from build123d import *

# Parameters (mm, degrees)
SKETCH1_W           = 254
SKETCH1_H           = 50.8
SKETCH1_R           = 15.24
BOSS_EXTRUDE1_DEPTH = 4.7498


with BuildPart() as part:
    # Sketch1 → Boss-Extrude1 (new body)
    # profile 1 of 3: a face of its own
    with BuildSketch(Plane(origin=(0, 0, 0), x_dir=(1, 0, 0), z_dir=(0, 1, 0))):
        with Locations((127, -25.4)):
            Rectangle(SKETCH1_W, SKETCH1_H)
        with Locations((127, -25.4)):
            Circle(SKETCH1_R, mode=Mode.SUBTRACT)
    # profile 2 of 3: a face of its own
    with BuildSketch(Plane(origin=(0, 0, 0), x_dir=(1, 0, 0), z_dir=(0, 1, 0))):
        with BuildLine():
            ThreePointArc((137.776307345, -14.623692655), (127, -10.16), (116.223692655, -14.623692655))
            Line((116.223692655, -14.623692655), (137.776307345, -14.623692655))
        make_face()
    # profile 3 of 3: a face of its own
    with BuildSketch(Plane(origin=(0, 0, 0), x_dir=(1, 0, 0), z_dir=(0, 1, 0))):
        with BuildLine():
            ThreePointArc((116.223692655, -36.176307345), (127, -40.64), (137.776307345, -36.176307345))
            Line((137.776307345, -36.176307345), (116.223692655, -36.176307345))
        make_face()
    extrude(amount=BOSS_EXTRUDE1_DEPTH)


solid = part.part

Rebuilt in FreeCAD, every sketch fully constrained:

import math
import FreeCAD as App
import Part
import Sketcher
from FreeCAD import Vector
Q = App.Units.Quantity


def add_polygon(sketch, points):
    """Adds a closed chain of lines whose ends are joined by coincident constraints."""
    first, n = sketch.GeometryCount, len(points)
    for a, b in zip(points, points[1:] + points[:1]):
        sketch.addGeometry(Part.LineSegment(App.Vector(*a, 0), App.Vector(*b, 0)), False)
    for i in range(n):
        sketch.addConstraint(Sketcher.Constraint("Coincident", first + i, 2, first + (i + 1) % n, 1))

doc = App.newDocument("Part")
body = doc.addObject("PartDesign::Body", "Body")

# Sketch on XZ plane
sketch1 = doc.addObject("Sketcher::SketchObject", "Sketch")
body.addObject(sketch1)
sketch1.AttachmentSupport = (doc.XZ_Plane, [""])
sketch1.MapMode = "FlatFace"
add_polygon(sketch1, [(0, 0), (0, 51), (254, 51), (254, 0)])  # lines 0-3
sketch1.addGeometry(Part.ArcOfCircle(Part.Circle(Vector(127, 25, 0), Vector(0, 0, 1), 15), math.radians(-45), math.radians(45)), False)  # 4
sketch1.addGeometry(Part.LineSegment(Vector(138, 36, 0), Vector(116, 36, 0)), False)  # 5
sketch1.addGeometry(Part.ArcOfCircle(Part.Circle(Vector(127, 25, 0), Vector(0, 0, 1), 15), math.radians(135), math.radians(225)), False)  # 6
sketch1.addGeometry(Part.LineSegment(Vector(116, 15, 0), Vector(138, 15, 0)), False)  # 7
sketch1.addConstraint(Sketcher.Constraint("Coincident", 4, 2, 5, 1))
sketch1.addConstraint(Sketcher.Constraint("Coincident", 5, 2, 6, 1))
sketch1.addConstraint(Sketcher.Constraint("Coincident", 6, 2, 7, 1))
sketch1.addConstraint(Sketcher.Constraint("Coincident", 7, 2, 4, 1))
sketch1.addConstraint(Sketcher.Constraint("Vertical", 0))
sketch1.addConstraint(Sketcher.Constraint("Horizontal", 1))
sketch1.addConstraint(Sketcher.Constraint("Vertical", 2))
sketch1.addConstraint(Sketcher.Constraint("Horizontal", 3))
sketch1.addConstraint(Sketcher.Constraint("Horizontal", 5))
sketch1.addConstraint(Sketcher.Constraint("Horizontal", 7))
sketch1.addConstraint(Sketcher.Constraint("Coincident", 3, 2, -1, 1))
sketch1.addConstraint(Sketcher.Constraint("Coincident", 6, 3, 4, 3))
sketch1.addConstraint(Sketcher.Constraint("Equal", 4, 6))
sketch1.addConstraint(Sketcher.Constraint("Vertical", 5, 2, 6, 2))
sketch1.addConstraint(Sketcher.Constraint("Radius", 4, Q("0.6 in")))
sketch1.addConstraint(Sketcher.Constraint("DistanceX", 1, 1, 1, 2, Q("10 in")))
sketch1.addConstraint(Sketcher.Constraint("DistanceY", 0, 1, 0, 2, Q("2 in")))
sketch1.addConstraint(Sketcher.Constraint("DistanceX", -1, 1, 4, 3, Q("5 in")))
sketch1.addConstraint(Sketcher.Constraint("DistanceY", -1, 1, 4, 3, Q("1 in")))
sketch1.addConstraint(Sketcher.Constraint("DistanceX", 5, 2, 5, 1, Q("21.552615 mm")))
pad1 = doc.addObject("PartDesign::Pad", "Pad")
body.addObject(pad1)
pad1.Profile = sketch1
pad1.Length = Q("0.187 in")
pad1.Reversed = True

doc.recompute()
